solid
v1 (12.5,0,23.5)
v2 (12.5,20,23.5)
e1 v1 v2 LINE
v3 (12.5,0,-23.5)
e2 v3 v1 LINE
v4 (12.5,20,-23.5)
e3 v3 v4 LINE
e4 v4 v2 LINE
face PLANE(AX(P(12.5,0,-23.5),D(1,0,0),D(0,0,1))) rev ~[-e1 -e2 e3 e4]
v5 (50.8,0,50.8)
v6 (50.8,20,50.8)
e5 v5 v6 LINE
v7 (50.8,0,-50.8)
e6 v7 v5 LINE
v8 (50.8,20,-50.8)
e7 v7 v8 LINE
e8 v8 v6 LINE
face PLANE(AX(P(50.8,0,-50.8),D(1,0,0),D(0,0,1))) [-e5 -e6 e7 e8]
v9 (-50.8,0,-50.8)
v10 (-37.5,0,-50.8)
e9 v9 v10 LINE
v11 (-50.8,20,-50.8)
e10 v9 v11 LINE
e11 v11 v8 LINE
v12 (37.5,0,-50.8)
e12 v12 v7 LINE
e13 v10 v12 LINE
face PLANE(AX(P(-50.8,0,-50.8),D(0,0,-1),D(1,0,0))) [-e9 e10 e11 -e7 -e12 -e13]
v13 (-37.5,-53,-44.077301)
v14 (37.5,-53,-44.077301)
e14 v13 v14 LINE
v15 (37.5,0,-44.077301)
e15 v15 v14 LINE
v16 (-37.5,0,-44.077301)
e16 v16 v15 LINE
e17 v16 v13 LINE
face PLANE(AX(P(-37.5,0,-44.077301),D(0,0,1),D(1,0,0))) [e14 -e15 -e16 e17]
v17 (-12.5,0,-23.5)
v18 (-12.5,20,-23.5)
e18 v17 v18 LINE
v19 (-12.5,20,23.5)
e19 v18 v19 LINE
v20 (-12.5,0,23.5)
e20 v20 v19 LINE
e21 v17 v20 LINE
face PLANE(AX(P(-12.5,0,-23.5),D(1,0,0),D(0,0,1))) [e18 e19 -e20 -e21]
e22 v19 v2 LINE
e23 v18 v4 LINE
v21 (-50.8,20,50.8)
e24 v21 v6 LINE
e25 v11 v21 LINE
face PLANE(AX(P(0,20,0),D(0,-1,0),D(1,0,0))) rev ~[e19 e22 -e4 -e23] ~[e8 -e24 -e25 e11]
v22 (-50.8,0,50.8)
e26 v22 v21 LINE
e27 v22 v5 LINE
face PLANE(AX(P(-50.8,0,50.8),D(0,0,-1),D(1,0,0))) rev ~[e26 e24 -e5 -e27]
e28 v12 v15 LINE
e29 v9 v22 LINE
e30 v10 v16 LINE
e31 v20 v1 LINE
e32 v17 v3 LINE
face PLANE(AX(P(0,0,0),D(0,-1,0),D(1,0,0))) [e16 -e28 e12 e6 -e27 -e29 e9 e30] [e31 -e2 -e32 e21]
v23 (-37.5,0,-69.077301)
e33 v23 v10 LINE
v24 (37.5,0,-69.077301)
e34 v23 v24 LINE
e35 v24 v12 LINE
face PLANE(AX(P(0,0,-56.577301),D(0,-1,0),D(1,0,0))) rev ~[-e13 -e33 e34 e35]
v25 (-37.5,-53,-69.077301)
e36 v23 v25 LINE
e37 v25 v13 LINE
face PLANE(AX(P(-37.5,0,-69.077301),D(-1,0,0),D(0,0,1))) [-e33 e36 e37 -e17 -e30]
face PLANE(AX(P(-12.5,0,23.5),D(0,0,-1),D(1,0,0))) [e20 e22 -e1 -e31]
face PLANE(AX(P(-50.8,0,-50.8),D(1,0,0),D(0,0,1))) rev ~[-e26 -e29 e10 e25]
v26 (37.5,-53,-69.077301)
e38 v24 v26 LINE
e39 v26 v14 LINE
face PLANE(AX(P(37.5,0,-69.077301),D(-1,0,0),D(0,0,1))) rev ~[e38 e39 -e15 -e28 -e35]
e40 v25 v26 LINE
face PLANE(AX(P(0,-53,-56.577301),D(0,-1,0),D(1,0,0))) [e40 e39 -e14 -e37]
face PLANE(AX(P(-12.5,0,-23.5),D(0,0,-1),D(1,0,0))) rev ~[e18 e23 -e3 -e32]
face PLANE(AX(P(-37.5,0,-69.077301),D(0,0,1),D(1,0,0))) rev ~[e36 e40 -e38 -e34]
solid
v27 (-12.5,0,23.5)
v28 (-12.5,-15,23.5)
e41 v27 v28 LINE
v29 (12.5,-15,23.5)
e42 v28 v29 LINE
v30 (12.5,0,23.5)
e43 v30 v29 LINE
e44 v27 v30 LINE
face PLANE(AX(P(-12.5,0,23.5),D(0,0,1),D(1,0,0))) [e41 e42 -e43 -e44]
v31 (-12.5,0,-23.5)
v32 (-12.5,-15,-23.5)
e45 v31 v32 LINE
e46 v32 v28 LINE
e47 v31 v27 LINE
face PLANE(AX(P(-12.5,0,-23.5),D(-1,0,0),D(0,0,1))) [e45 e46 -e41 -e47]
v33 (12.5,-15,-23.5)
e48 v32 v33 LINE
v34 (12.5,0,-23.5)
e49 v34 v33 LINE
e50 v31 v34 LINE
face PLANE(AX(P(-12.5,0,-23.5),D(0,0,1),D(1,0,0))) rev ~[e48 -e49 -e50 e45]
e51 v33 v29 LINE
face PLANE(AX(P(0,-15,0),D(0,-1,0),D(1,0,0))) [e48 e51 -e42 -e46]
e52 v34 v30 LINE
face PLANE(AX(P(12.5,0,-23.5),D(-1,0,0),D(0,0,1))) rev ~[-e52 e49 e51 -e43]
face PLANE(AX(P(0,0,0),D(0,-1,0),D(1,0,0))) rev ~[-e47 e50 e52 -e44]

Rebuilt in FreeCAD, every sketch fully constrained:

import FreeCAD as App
import Part
import Sketcher
from FreeCAD import Vector
Q = App.Units.Quantity


def add_polygon(sketch, points):
    """Adds a closed chain of lines whose ends are joined by coincident constraints."""
    first, n = sketch.GeometryCount, len(points)
    for a, b in zip(points, points[1:] + points[:1]):
        sketch.addGeometry(Part.LineSegment(App.Vector(*a, 0), App.Vector(*b, 0)), False)
    for i in range(n):
        sketch.addConstraint(Sketcher.Constraint("Coincident", first + i, 2, first + (i + 1) % n, 1))

doc = App.newDocument("Part")
body = doc.addObject("PartDesign::Body", "Body")

sketch1 = body.newObject("Sketcher::SketchObject", "Sketch")
sketch1.AttachmentSupport = (doc.getObject("XZ_Plane"), [""])
sketch1.MapMode = "FlatFace"
add_polygon(sketch1, [(-12.5, 23.5), (-12.5, -23.5), (12.5, -23.5), (12.5, 23.5)])
sketch1.addConstraint(Sketcher.Constraint("Vertical", 0))
sketch1.addConstraint(Sketcher.Constraint("Horizontal", 1))
sketch1.addConstraint(Sketcher.Constraint("Vertical", 2))
sketch1.addConstraint(Sketcher.Constraint("Horizontal", 3))
sketch1.addConstraint(Sketcher.Constraint("Symmetric", 0, 2, 2, 2, -1, 1))
sketch1.addConstraint(Sketcher.Constraint("DistanceX", 1, 1, 1, 2, Q("25 mm")))
sketch1.addConstraint(Sketcher.Constraint("DistanceY", 0, 2, 0, 1, Q("47 mm")))
pad1 = body.newObject("PartDesign::Pad", "Pad")
pad1.Profile = sketch1
pad1.Length = 15
body2 = doc.addObject("PartDesign::Body", "Body001")

sketch2 = body2.newObject("Sketcher::SketchObject", "Sketch001")
sketch2.AttachmentSupport = (doc.getObject("XZ_Plane001"), [""])
sketch2.MapMode = "FlatFace"
add_polygon(sketch2, [(-50.8, 50.8), (-50.8, -50.8), (50.8, -50.8), (50.8, 50.8)])
add_polygon(sketch2, [(12.5, -23.5), (-12.5, -23.5), (-12.5, 23.5), (12.5, 23.5)])
sketch2.addConstraint(Sketcher.Constraint("Vertical", 0))
sketch2.addConstraint(Sketcher.Constraint("Horizontal", 1))
sketch2.addConstraint(Sketcher.Constraint("Vertical", 2))
sketch2.addConstraint(Sketcher.Constraint("Horizontal", 3))
sketch2.addConstraint(Sketcher.Constraint("Horizontal", 4))
sketch2.addConstraint(Sketcher.Constraint("Vertical", 5))
sketch2.addConstraint(Sketcher.Constraint("Horizontal", 6))
sketch2.addConstraint(Sketcher.Constraint("Vertical", 7))
sketch2.addConstraint(Sketcher.Constraint("Symmetric", 0, 2, 2, 2, -1, 1))
sketch2.addConstraint(Sketcher.Constraint("Symmetric", 4, 2, 6, 2, -1, 1))
sketch2.addConstraint(Sketcher.Constraint("Equal", 3, 0))
sketch2.addConstraint(Sketcher.Constraint("DistanceX", 4, 2, 4, 1, Q("25 mm")))
sketch2.addConstraint(Sketcher.Constraint("DistanceY", 5, 1, 5, 2, Q("47 mm")))
sketch2.addConstraint(Sketcher.Constraint("DistanceX", 1, 1, 1, 2, Q("101.6 mm")))
pad2 = body2.newObject("PartDesign::Pad", "Pad001")
pad2.Profile = sketch2
pad2.Length = 20
pad2.Reversed = True

sketch3 = body2.newObject("Sketcher::SketchObject", "Sketch002")
sketch3.AttachmentSupport = (doc.getObject("XZ_Plane001"), [""])
sketch3.MapMode = "FlatFace"
add_polygon(sketch3, [(-37.5, -44.077301), (-37.5, -69.077301), (37.5, -69.077301), (37.5, -44.077301)])
sketch3.addConstraint(Sketcher.Constraint("Vertical", 0))
sketch3.addConstraint(Sketcher.Constraint("Horizontal", 1))
sketch3.addConstraint(Sketcher.Constraint("Vertical", 2))
sketch3.addConstraint(Sketcher.Constraint("Horizontal", 3))
sketch3.addConstraint(Sketcher.Constraint("DistanceX", 1, 1, 1, 2, Q("75 mm")))
sketch3.addConstraint(Sketcher.Constraint("DistanceY", 0, 2, 0, 1, Q("25 mm")))
sketch3.addConstraint(Sketcher.Constraint("DistanceX", 0, 2, -1, 1, Q("37.5 mm")))
sketch3.addConstraint(Sketcher.Constraint("DistanceY", 0, 2, -1, 1, Q("69.077301 mm")))
pad3 = body2.newObject("PartDesign::Pad", "Pad002")
pad3.Profile = sketch3
pad3.Length = 53

doc.recompute()
